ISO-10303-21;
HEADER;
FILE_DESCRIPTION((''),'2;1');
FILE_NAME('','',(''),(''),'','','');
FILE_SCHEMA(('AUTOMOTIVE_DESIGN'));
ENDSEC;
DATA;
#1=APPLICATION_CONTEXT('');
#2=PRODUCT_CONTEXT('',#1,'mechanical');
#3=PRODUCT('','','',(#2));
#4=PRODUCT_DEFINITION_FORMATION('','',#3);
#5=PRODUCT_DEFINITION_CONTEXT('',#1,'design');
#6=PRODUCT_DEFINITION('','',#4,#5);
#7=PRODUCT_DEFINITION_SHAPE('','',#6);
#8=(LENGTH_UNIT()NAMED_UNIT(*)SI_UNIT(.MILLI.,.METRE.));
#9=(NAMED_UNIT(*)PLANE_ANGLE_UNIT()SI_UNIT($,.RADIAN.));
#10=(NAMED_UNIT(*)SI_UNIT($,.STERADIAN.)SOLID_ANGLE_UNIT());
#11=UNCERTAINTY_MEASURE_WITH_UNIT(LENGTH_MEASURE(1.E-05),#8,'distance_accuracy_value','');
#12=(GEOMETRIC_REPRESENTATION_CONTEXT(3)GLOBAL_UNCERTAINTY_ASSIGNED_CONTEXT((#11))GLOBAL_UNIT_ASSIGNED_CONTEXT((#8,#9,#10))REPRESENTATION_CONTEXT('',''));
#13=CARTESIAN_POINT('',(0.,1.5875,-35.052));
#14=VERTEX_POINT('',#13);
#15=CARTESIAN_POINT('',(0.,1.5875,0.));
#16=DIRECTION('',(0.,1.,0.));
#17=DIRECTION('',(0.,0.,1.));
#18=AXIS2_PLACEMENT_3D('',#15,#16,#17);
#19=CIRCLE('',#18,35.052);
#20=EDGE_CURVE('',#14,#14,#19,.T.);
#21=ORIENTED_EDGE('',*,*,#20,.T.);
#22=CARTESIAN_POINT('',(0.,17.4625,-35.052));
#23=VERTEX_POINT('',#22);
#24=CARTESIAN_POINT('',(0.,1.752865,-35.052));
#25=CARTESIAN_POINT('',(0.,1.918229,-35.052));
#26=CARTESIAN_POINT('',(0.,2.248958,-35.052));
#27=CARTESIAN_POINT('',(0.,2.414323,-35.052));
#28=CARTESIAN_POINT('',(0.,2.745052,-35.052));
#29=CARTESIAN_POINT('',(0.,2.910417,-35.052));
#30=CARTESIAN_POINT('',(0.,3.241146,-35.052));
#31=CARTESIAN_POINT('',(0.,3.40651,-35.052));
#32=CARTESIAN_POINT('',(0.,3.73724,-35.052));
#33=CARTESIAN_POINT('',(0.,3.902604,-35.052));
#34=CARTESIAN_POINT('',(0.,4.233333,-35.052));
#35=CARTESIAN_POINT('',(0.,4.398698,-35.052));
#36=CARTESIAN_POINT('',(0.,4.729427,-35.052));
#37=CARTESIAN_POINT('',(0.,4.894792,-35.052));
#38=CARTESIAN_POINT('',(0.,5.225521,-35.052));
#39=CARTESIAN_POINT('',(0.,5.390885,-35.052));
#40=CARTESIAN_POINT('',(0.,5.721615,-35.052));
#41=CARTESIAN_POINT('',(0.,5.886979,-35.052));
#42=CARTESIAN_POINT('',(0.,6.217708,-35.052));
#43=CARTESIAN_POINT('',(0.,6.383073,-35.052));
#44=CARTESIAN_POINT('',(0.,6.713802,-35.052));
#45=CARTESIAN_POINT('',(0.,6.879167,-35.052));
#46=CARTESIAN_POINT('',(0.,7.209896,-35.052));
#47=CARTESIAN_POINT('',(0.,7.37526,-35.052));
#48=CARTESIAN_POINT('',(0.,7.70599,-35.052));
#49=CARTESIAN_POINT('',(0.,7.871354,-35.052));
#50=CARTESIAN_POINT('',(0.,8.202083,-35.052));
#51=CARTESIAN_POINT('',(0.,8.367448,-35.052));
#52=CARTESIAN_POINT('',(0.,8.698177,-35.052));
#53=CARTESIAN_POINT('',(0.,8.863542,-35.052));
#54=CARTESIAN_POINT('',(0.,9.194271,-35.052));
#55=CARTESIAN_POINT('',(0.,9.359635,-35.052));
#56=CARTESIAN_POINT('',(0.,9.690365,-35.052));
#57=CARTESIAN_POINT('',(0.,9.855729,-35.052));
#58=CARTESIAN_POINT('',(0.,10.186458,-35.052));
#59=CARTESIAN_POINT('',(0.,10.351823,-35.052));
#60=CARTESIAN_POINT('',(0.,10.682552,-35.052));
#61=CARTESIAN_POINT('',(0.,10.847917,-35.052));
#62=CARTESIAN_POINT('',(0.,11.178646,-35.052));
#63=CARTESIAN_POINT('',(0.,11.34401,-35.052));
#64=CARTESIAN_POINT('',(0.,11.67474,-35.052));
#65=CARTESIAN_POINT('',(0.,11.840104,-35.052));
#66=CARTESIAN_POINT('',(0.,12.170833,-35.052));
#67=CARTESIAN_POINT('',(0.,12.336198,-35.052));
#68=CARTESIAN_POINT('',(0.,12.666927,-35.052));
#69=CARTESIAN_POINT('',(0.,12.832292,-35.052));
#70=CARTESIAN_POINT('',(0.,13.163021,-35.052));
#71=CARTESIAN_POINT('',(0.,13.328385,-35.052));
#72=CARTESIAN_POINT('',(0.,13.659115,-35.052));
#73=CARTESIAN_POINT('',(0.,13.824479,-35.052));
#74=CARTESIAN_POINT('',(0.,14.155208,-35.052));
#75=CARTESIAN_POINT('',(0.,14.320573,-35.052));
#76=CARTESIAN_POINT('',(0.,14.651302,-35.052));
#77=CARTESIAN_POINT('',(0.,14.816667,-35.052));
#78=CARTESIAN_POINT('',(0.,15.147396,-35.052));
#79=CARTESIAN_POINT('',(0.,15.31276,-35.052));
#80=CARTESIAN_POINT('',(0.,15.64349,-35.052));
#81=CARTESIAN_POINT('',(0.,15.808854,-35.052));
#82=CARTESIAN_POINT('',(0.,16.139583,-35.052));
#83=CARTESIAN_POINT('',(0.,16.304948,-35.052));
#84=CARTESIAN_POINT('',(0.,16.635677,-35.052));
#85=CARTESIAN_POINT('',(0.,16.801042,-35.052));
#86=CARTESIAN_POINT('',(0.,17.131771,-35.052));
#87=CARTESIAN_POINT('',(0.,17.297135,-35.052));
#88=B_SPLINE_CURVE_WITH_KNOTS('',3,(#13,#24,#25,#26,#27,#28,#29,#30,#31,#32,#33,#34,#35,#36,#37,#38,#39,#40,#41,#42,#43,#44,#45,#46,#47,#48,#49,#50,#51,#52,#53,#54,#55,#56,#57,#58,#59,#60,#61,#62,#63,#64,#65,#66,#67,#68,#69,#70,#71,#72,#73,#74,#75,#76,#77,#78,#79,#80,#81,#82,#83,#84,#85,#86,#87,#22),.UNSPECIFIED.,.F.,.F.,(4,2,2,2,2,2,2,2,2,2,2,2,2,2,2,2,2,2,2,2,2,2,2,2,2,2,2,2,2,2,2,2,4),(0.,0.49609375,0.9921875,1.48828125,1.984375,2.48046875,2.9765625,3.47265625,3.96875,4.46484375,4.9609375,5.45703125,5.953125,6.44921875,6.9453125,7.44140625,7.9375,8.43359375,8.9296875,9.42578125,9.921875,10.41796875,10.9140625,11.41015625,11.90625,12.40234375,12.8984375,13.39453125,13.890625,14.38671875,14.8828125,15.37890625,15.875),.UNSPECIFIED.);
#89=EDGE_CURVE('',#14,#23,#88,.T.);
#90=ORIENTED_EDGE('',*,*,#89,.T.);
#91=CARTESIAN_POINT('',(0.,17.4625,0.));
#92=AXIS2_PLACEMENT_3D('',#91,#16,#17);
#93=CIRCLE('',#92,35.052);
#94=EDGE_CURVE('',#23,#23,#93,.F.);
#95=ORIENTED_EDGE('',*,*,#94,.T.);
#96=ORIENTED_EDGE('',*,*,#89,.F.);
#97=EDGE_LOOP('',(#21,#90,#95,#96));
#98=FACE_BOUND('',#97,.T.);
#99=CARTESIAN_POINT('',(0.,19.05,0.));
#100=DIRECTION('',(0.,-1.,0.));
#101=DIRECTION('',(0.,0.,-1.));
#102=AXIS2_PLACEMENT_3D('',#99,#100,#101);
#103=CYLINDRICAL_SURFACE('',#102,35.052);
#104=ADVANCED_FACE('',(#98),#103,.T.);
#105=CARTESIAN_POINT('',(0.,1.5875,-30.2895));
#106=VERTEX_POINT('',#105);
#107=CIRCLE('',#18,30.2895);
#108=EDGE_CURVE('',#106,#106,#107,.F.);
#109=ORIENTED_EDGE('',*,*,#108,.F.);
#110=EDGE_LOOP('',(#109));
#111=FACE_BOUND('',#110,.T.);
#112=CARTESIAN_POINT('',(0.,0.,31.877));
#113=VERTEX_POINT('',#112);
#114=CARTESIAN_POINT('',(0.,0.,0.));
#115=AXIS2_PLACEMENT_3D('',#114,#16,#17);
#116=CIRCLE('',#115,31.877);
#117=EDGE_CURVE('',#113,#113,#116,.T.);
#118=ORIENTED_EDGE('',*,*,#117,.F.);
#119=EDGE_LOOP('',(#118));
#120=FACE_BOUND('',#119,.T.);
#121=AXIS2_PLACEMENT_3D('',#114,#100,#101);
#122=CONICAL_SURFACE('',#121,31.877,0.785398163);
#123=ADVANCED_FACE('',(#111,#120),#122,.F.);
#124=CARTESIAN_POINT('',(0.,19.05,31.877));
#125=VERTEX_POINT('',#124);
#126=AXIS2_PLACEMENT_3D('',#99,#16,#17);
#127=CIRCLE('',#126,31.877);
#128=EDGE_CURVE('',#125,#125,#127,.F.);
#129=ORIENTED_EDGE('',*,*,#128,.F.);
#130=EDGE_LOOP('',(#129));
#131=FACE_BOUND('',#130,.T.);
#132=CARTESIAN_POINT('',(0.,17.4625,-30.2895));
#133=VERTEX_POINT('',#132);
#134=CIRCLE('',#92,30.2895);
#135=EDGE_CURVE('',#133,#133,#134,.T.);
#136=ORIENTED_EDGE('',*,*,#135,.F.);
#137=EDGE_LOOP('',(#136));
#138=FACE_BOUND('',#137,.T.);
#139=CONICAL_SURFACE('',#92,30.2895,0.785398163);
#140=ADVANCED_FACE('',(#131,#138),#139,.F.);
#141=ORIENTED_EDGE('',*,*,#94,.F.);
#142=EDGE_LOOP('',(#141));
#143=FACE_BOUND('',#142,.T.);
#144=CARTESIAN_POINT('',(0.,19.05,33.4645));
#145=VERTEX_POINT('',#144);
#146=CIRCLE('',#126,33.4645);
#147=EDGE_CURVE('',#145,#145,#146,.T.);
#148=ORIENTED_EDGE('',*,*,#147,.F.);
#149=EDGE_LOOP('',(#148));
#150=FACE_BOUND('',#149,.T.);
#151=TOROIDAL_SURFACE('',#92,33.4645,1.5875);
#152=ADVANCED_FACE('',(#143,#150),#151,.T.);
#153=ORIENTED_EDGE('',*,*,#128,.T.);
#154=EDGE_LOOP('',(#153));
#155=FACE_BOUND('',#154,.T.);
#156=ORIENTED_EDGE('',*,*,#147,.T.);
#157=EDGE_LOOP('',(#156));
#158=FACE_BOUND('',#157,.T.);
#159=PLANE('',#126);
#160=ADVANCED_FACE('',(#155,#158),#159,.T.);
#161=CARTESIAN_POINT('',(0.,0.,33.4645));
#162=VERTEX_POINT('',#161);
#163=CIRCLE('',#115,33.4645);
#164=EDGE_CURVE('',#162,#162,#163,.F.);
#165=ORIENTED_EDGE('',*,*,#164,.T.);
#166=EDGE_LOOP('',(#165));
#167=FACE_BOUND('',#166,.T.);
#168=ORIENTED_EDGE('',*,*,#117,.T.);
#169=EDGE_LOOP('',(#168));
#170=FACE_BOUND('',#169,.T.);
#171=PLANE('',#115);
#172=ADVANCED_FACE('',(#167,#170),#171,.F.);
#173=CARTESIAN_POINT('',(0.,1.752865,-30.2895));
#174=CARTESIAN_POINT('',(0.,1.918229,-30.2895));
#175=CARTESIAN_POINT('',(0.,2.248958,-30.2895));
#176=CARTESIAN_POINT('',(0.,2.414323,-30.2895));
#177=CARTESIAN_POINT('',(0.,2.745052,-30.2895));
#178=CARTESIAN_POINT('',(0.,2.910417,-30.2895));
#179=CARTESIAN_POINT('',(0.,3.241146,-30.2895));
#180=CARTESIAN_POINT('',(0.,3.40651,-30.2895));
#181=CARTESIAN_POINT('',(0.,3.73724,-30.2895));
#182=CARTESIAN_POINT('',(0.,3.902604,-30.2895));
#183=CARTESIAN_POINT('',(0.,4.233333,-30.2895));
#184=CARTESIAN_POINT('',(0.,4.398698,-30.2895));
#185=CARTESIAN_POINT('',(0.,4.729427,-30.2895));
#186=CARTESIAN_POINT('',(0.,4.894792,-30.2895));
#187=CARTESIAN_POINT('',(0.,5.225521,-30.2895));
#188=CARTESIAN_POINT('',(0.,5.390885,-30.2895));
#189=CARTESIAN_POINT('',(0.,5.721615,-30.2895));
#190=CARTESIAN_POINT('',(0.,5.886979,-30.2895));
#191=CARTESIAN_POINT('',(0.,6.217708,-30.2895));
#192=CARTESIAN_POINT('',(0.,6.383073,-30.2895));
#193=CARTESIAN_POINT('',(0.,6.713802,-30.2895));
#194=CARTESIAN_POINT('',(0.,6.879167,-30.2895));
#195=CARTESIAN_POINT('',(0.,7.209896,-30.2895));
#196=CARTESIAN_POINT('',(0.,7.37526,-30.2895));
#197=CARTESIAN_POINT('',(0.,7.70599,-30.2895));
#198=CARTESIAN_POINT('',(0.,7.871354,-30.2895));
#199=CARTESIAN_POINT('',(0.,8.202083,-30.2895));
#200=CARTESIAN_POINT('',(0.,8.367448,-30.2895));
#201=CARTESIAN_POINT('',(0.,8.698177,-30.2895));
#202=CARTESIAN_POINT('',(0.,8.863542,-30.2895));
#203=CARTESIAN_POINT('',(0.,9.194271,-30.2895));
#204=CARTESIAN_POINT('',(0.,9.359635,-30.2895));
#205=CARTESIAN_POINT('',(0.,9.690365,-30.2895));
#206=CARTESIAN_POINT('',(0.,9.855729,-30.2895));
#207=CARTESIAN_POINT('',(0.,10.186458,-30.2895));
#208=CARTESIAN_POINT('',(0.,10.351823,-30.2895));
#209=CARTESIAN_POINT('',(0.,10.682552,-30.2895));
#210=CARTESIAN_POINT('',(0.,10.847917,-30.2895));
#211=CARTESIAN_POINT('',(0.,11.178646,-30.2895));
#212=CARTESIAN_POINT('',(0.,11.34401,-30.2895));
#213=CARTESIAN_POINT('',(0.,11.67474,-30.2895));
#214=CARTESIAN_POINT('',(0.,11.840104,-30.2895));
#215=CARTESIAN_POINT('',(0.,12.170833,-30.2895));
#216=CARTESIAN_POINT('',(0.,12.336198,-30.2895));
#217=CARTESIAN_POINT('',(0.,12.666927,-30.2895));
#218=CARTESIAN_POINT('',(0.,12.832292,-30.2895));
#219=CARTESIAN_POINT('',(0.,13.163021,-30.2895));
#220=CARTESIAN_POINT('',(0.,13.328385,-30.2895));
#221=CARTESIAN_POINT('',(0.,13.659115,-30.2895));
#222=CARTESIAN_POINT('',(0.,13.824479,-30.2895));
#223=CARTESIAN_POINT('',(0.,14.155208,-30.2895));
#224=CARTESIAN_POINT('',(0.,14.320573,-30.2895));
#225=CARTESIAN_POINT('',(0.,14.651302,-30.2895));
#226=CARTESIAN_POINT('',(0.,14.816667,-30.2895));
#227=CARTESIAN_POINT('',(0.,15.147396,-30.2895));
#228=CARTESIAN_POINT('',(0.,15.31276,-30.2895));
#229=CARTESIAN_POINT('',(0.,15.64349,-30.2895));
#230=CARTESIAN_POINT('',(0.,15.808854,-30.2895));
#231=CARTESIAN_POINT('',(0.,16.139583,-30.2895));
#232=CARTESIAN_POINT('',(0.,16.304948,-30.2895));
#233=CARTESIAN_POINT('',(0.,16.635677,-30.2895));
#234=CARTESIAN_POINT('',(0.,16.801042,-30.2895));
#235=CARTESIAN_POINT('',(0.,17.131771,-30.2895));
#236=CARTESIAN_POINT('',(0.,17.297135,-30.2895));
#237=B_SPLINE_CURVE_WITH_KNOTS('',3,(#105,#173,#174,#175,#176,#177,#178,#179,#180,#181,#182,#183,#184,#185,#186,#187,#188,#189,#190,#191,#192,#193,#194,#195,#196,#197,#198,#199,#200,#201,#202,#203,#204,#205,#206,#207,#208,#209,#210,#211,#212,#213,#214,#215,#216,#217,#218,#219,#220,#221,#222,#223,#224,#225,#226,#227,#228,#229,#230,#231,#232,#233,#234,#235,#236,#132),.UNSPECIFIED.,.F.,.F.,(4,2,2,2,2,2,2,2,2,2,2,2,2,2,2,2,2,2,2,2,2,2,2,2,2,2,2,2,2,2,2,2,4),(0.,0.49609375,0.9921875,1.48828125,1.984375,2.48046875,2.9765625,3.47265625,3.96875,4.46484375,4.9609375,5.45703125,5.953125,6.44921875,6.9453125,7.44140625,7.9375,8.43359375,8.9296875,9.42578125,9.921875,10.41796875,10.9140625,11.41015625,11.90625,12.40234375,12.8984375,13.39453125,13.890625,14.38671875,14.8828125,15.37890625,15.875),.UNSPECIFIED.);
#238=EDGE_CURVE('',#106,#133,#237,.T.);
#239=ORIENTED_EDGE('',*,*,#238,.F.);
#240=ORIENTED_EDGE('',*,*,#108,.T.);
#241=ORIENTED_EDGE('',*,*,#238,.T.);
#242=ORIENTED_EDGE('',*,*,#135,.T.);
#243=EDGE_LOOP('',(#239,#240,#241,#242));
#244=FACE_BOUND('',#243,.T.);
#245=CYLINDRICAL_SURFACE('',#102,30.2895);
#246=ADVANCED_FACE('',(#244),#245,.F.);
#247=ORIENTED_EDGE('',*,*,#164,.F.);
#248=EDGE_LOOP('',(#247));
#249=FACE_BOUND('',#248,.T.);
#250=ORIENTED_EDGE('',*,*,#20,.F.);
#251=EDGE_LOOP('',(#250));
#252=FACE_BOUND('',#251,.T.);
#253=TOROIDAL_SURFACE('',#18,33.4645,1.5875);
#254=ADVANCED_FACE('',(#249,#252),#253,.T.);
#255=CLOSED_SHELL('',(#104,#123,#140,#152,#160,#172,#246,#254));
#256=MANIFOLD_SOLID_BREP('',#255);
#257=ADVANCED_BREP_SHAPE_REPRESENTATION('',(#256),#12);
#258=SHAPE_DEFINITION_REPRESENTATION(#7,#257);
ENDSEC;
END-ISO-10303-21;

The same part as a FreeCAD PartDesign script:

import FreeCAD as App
import Part
import Sketcher
Q = App.Units.Quantity


def edges_at(feature, points):
    """Names of the edges that pass closest to the given points."""
    edges = feature.Shape.Edges
    near = lambda p: min(range(len(edges)), key=lambda i: edges[i].distToShape(Part.Vertex(*p))[0])
    return sorted({f"Edge{near(p) + 1}" for p in points})

doc = App.newDocument("Part")
body = doc.addObject("PartDesign::Body", "Body")

sketch1 = doc.addObject("Sketcher::SketchObject", "Sketch")
body.addObject(sketch1)
sketch1.AttachmentSupport = (doc.XZ_Plane, [""])
sketch1.MapMode = "FlatFace"
sketch1.addGeometry([
    Part.Circle(App.Vector(0, 0, 0), App.Vector(0, 0, 1), 35),
    Part.Circle(App.Vector(0, 0, 0), App.Vector(0, 0, 1), 30),
], False)
sketch1.addConstraint([
    Sketcher.Constraint("Coincident", 0, 3, -1, 1),
    Sketcher.Constraint("Coincident", 1, 3, -1, 1),
    Sketcher.Constraint("Diameter", 0, Q("2.76 in")),
    Sketcher.Constraint("Diameter", 1, Q("2.385 in")),
])
pad1 = doc.addObject("PartDesign::Pad", "Pad")
body.addObject(pad1)
pad1.Profile = sketch1
pad1.Length = Q("0.75 in")
pad1.Reversed = True
doc.recompute()

fillet = doc.addObject("PartDesign::Fillet", "Fillet")
body.addObject(fillet)
fillet.Base = (pad1, edges_at(pad1, [(0, 0, 35.052), (0, 19.05, 35.052)]))
fillet.Radius = Q("0.0625 in")
doc.recompute()

chamfer = doc.addObject("PartDesign::Chamfer", "Chamfer")
body.addObject(chamfer)
chamfer.Base = (fillet, edges_at(fillet, [(0, 0, 30.29), (0, 19.05, 30.29)]))
chamfer.Size = Q("0.0625 in")

doc.recompute()
